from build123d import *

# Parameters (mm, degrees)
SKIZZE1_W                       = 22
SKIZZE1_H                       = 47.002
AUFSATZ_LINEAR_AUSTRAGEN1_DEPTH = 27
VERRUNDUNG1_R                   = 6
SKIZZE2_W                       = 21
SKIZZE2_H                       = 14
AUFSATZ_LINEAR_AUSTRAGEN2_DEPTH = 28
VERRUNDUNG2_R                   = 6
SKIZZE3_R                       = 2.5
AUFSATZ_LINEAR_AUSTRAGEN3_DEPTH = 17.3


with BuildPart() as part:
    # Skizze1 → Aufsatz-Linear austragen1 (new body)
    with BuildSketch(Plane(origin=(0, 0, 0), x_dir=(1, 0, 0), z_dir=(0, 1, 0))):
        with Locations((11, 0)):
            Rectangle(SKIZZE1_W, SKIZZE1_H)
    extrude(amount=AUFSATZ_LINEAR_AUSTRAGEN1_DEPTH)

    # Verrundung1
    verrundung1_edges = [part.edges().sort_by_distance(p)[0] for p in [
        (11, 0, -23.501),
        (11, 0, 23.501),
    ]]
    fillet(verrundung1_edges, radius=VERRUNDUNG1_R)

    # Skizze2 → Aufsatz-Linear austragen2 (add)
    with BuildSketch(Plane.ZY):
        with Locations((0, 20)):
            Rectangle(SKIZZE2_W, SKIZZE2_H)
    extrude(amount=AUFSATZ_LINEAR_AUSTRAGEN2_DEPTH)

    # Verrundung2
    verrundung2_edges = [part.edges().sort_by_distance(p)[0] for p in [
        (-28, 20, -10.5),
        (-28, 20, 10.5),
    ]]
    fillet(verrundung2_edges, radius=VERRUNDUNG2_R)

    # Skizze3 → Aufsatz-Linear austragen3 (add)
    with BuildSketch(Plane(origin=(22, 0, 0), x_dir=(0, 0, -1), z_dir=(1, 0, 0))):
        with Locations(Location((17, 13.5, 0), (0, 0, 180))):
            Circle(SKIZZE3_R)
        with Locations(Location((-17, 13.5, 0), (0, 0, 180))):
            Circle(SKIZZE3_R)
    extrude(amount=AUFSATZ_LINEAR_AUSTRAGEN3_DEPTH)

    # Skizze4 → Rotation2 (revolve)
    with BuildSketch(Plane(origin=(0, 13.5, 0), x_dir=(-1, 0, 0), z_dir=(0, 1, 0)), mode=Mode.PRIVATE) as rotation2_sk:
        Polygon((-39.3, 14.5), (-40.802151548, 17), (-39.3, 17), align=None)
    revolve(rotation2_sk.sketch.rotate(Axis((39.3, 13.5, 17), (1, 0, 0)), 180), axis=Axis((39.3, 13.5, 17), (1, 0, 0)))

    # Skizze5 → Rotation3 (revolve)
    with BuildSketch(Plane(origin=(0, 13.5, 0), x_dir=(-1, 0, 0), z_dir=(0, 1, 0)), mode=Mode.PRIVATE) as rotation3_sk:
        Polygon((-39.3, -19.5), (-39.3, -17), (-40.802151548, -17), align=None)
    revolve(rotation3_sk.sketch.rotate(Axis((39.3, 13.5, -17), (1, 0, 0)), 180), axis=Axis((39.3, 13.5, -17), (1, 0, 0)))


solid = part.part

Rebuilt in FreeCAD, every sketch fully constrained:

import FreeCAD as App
import Part
import Sketcher
from FreeCAD import Vector
Q = App.Units.Quantity


def edges_at(feature, points):
    """Names of the edges that pass closest to the given points."""
    edges = feature.Shape.Edges
    near = lambda p: min(range(len(edges)), key=lambda i: edges[i].distToShape(Part.Vertex(*p))[0])
    return sorted({f"Edge{near(p) + 1}" for p in points})


def add_polygon(sketch, points):
    """Adds a closed chain of lines whose ends are joined by coincident constraints."""
    first, n = sketch.GeometryCount, len(points)
    for a, b in zip(points, points[1:] + points[:1]):
        sketch.addGeometry(Part.LineSegment(App.Vector(*a, 0), App.Vector(*b, 0)), False)
    for i in range(n):
        sketch.addConstraint(Sketcher.Constraint("Coincident", first + i, 2, first + (i + 1) % n, 1))

doc = App.newDocument("Part")
body = doc.addObject("PartDesign::Body", "Body")

# Sketch on XZ plane
sketch1 = body.newObject("Sketcher::SketchObject", "Sketch")
sketch1.AttachmentSupport = (doc.getObject("XZ_Plane"), [""])
sketch1.MapMode = "FlatFace"
add_polygon(sketch1, [(0, -24), (0, 24), (22, 24), (22, -24)])  # lines 0-3
sketch1.addConstraint(Sketcher.Constraint("Vertical", 0))
sketch1.addConstraint(Sketcher.Constraint("Horizontal", 1))
sketch1.addConstraint(Sketcher.Constraint("Vertical", 2))
sketch1.addConstraint(Sketcher.Constraint("Horizontal", 3))
sketch1.addConstraint(Sketcher.Constraint("Symmetric", 0, 2, 3, 2, -1, 1))
sketch1.addConstraint(Sketcher.Constraint("DistanceX", 1, 1, 1, 2, Q("22 mm")))
sketch1.addConstraint(Sketcher.Constraint("DistanceY", 0, 1, 0, 2, Q("47.002 mm")))
pad1 = body.newObject("PartDesign::Pad", "Pad")
pad1.Profile = sketch1
pad1.Length = 27
pad1.Reversed = True
doc.recompute()

fillet = body.newObject("PartDesign::Fillet", "Fillet")
fillet.Base = (pad1, edges_at(pad1, [(11, 0, -23.501), (11, 0, 23.501)]))
fillet.Radius = 6

# Sketch on YZ plane
sketch2 = body.newObject("Sketcher::SketchObject", "Sketch001")
sketch2.AttachmentSupport = (doc.getObject("YZ_Plane"), [""])
sketch2.MapMode = "FlatFace"
add_polygon(sketch2, [(27, -10), (13, -10), (13, 10), (27, 10)])  # lines 0-3
sketch2.addConstraint(Sketcher.Constraint("Horizontal", 0))
sketch2.addConstraint(Sketcher.Constraint("Vertical", 1))
sketch2.addConstraint(Sketcher.Constraint("Horizontal", 2))
sketch2.addConstraint(Sketcher.Constraint("Vertical", 3))
sketch2.addConstraint(Sketcher.Constraint("DistanceX", 0, 2, 0, 1, Q("14 mm")))
sketch2.addConstraint(Sketcher.Constraint("DistanceY", 1, 1, 1, 2, Q("21 mm")))
sketch2.addConstraint(Sketcher.Constraint("DistanceX", -1, 1, 0, 2, Q("13 mm")))
sketch2.addConstraint(Sketcher.Constraint("DistanceY", 0, 2, -1, 1, Q("10.5 mm")))
pad2 = body.newObject("PartDesign::Pad", "Pad001")
pad2.Profile = sketch2
pad2.Length = 28
pad2.Reversed = True
doc.recompute()

fillet2 = body.newObject("PartDesign::Fillet", "Fillet001")
fillet2.Base = (pad2, edges_at(pad2, [(-28, 20, -10.5), (-28, 20, 10.5)]))
fillet2.Radius = 6

# Sketch on YZ plane
sketch3 = body.newObject("Sketcher::SketchObject", "Sketch002")
sketch3.AttachmentSupport = (doc.getObject("YZ_Plane"), [""])
sketch3.MapMode = "FlatFace"
sketch3.AttachmentOffset = App.Placement(Vector(0, 0, 22), App.Rotation())
sketch3.addGeometry(Part.Circle(Vector(13.5, -17, 0), Vector(0, 0, 1), 2.5), False)
sketch3.addGeometry(Part.Circle(Vector(13.5, 17, 0), Vector(0, 0, 1), 2.5), False)
sketch3.addConstraint(Sketcher.Constraint("Equal", 0, 1))
sketch3.addConstraint(Sketcher.Constraint("Symmetric", 0, 3, 1, 3, -1))
sketch3.addConstraint(Sketcher.Constraint("Diameter", 0, Q("5 mm")))
sketch3.addConstraint(Sketcher.Constraint("DistanceY", 0, 3, -1, 1, Q("17 mm")))
sketch3.addConstraint(Sketcher.Constraint("DistanceX", -1, 1, 0, 3, Q("13.5 mm")))
pad3 = body.newObject("PartDesign::Pad", "Pad002")
pad3.Profile = sketch3
pad3.Length = 17.3

# Sketch on XZ plane
sketch4 = body.newObject("Sketcher::SketchObject", "Sketch003")
sketch4.AttachmentSupport = (doc.getObject("XZ_Plane"), [""])
sketch4.MapMode = "FlatFace"
sketch4.AttachmentOffset = App.Placement(Vector(0, 0, -13.5), App.Rotation())
add_polygon(sketch4, [(40.8, 17), (39.3, 14.5), (39.3, 17)])  # lines 0-2
sketch4.addGeometry(Part.LineSegment(Vector(39.3, 17, 0), Vector(40.8, 17, 0)), True)  # axis
sketch4.addConstraint(Sketcher.Constraint("Vertical", 1))
sketch4.addConstraint(Sketcher.Constraint("Horizontal", 2))
sketch4.addConstraint(Sketcher.Constraint("Horizontal", 3))
sketch4.addConstraint(Sketcher.Constraint("Coincident", 3, 1, 1, 2))
sketch4.addConstraint(Sketcher.Constraint("Equal", 2, 3))
sketch4.addConstraint(Sketcher.Constraint("Angle", 0, Q("-121 deg")))
sketch4.addConstraint(Sketcher.Constraint("DistanceY", 1, 1, 1, 2, Q("2.5 mm")))
sketch4.addConstraint(Sketcher.Constraint("DistanceY", -1, 1, 1, 2, Q("17 mm")))
sketch4.addConstraint(Sketcher.Constraint("DistanceX", -1, 1, 0, 2, Q("39.3 mm")))
revolution = body.newObject("PartDesign::Revolution", "Revolution")
revolution.Profile = sketch4
revolution.ReferenceAxis = (sketch4, ["Axis0"])
revolution.Angle = 360

# Sketch on XZ plane
sketch5 = body.newObject("Sketcher::SketchObject", "Sketch004")
sketch5.AttachmentSupport = (doc.getObject("XZ_Plane"), [""])
sketch5.MapMode = "FlatFace"
sketch5.AttachmentOffset = App.Placement(Vector(0, 0, -13.5), App.Rotation())
add_polygon(sketch5, [(39.3, -19.5), (39.3, -17), (40.8, -17)])  # lines 0-2
sketch5.addGeometry(Part.LineSegment(Vector(39.3, -17, 0), Vector(40.8, -17, 0)), True)  # axis
sketch5.addConstraint(Sketcher.Constraint("Vertical", 0))
sketch5.addConstraint(Sketcher.Constraint("Horizontal", 1))
sketch5.addConstraint(Sketcher.Constraint("Horizontal", 3))
sketch5.addConstraint(Sketcher.Constraint("Coincident", 3, 1, 0, 2))
sketch5.addConstraint(Sketcher.Constraint("Equal", 1, 3))
sketch5.addConstraint(Sketcher.Constraint("Angle", 2, Q("-121 deg")))
sketch5.addConstraint(Sketcher.Constraint("DistanceY", 0, 1, 0, 2, Q("2.5 mm")))
sketch5.addConstraint(Sketcher.Constraint("DistanceY", 0, 2, -1, 1, Q("17 mm")))
sketch5.addConstraint(Sketcher.Constraint("DistanceX", -1, 1, 0, 2, Q("39.3 mm")))
revolution2 = body.newObject("PartDesign::Revolution", "Revolution001")
revolution2.Profile = sketch5
revolution2.ReferenceAxis = (sketch5, ["Axis0"])
revolution2.Angle = 360

doc.recompute()
